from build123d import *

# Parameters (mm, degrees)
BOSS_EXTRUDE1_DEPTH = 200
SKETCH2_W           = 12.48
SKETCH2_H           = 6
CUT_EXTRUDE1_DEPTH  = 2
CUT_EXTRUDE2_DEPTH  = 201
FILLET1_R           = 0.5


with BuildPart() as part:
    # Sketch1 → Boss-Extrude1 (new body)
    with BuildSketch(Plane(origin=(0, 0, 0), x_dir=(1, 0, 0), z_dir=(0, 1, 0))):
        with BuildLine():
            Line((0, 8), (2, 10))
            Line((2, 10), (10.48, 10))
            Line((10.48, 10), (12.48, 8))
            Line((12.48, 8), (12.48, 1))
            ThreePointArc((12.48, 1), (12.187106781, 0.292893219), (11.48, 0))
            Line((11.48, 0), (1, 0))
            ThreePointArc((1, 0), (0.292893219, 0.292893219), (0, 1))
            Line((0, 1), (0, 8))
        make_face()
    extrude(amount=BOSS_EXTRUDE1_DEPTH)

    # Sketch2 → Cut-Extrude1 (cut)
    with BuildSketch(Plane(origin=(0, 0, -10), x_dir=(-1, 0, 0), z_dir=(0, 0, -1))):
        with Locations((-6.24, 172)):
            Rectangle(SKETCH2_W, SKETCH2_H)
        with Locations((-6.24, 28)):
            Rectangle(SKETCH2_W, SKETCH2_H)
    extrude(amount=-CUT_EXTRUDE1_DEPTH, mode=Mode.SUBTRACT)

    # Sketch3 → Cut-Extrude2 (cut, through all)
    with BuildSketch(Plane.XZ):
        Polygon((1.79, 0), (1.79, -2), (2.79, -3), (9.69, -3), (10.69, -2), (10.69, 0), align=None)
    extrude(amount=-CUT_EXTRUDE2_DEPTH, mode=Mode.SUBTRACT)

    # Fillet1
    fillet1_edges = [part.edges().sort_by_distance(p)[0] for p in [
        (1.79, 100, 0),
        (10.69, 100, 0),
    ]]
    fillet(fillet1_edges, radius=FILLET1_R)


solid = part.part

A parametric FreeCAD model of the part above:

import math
import FreeCAD as App
import Part
import Sketcher


def edges_at(feature, points):
    """Names of the edges that pass closest to the given points."""
    edges = feature.Shape.Edges
    near = lambda p: min(range(len(edges)), key=lambda i: edges[i].distToShape(Part.Vertex(*p))[0])
    return sorted({f"Edge{near(p) + 1}" for p in points})

doc = App.newDocument("Part")
body = doc.addObject("PartDesign::Body", "Body")

# Sketch on XZ plane
sketch1 = body.newObject("Sketcher::SketchObject", "Sketch")
sketch1.AttachmentSupport = (doc.getObject("XZ_Plane"), [""])
sketch1.MapMode = "FlatFace"
sketch1.addGeometry(Part.LineSegment(App.Vector(2, -10, 0), App.Vector(0, -8, 0)), False)
sketch1.addGeometry(Part.LineSegment(App.Vector(0, -8, 0), App.Vector(0, -1, 0)), False)
sketch1.addGeometry(Part.ArcOfCircle(Part.Circle(App.Vector(1, -1, 0), App.Vector(0, 0, 1), 1), math.radians(90), math.radians(180)), False)
sketch1.addGeometry(Part.LineSegment(App.Vector(1, 0, 0), App.Vector(11.48, 0, 0)), False)
sketch1.addGeometry(Part.ArcOfCircle(Part.Circle(App.Vector(11.48, -1, 0), App.Vector(0, 0, 1), 1), math.radians(0), math.radians(90)), False)
sketch1.addGeometry(Part.LineSegment(App.Vector(12.48, -1, 0), App.Vector(12.48, -8, 0)), False)
sketch1.addGeometry(Part.LineSegment(App.Vector(12.48, -8, 0), App.Vector(10.48, -10, 0)), False)
sketch1.addGeometry(Part.LineSegment(App.Vector(10.48, -10, 0), App.Vector(2, -10, 0)), False)
sketch1.addConstraint(Sketcher.Constraint("Coincident", 0, 2, 1, 1))
sketch1.addConstraint(Sketcher.Constraint("Tangent", 1, 2, 2, 2))
sketch1.addConstraint(Sketcher.Constraint("Tangent", 2, 1, 3, 1))
sketch1.addConstraint(Sketcher.Constraint("Tangent", 3, 2, 4, 2))
sketch1.addConstraint(Sketcher.Constraint("Tangent", 4, 1, 5, 1))
sketch1.addConstraint(Sketcher.Constraint("Coincident", 5, 2, 6, 1))
sketch1.addConstraint(Sketcher.Constraint("Coincident", 6, 2, 7, 1))
sketch1.addConstraint(Sketcher.Constraint("Coincident", 7, 2, 0, 1))
sketch1.addConstraint(Sketcher.Constraint("Vertical", 1))
sketch1.addConstraint(Sketcher.Constraint("Horizontal", 3))
sketch1.addConstraint(Sketcher.Constraint("Vertical", 5))
sketch1.addConstraint(Sketcher.Constraint("Horizontal", 7))
sketch1.addConstraint(Sketcher.Constraint("Equal", 2, 4))
sketch1.addConstraint(Sketcher.Constraint("PointOnObject", 0, 2, -2))
sketch1.addConstraint(Sketcher.Constraint("PointOnObject", 2, 1, -1))
sketch1.addConstraint(Sketcher.Constraint("Perpendicular", 0, 6))
sketch1.addConstraint(Sketcher.Constraint("Horizontal", 0, 2, 5, 2))
sketch1.addConstraint(Sketcher.Constraint("Equal", 0, 6))
sketch1.addConstraint(Sketcher.Constraint("Radius", 2, 1.0))
sketch1.addConstraint(Sketcher.Constraint("DistanceY", 1, 1, 1, 2, 7.0))
sketch1.addConstraint(Sketcher.Constraint("DistanceY", 6, 2, -1, 1, 10.0))
sketch1.addConstraint(Sketcher.Constraint("DistanceX", 3, 1, 3, 2, 10.48))
pad1 = body.newObject("PartDesign::Pad", "Pad")
pad1.Profile = sketch1
pad1.Length = 200
pad1.Reversed = True

# Sketch on XY plane
sketch2 = body.newObject("Sketcher::SketchObject", "Sketch001")
sketch2.AttachmentSupport = (doc.getObject("XY_Plane"), [""])
sketch2.MapMode = "FlatFace"
sketch2.AttachmentOffset = App.Placement(App.Vector(0, 0, -10), App.Rotation())
sketch2.addGeometry(Part.LineSegment(App.Vector(12.48, 175, 0), App.Vector(12.48, 169, 0)), False)
sketch2.addGeometry(Part.LineSegment(App.Vector(12.48, 169, 0), App.Vector(0, 169, 0)), False)
sketch2.addGeometry(Part.LineSegment(App.Vector(0, 169, 0), App.Vector(0, 175, 0)), False)
sketch2.addGeometry(Part.LineSegment(App.Vector(0, 175, 0), App.Vector(12.48, 175, 0)), False)
sketch2.addGeometry(Part.LineSegment(App.Vector(12.48, 31, 0), App.Vector(12.48, 25, 0)), False)
sketch2.addGeometry(Part.LineSegment(App.Vector(12.48, 25, 0), App.Vector(0, 25, 0)), False)
sketch2.addGeometry(Part.LineSegment(App.Vector(0, 25, 0), App.Vector(0, 31, 0)), False)
sketch2.addGeometry(Part.LineSegment(App.Vector(0, 31, 0), App.Vector(12.48, 31, 0)), False)
sketch2.addConstraint(Sketcher.Constraint("Coincident", 0, 2, 1, 1))
sketch2.addConstraint(Sketcher.Constraint("Coincident", 1, 2, 2, 1))
sketch2.addConstraint(Sketcher.Constraint("Coincident", 2, 2, 3, 1))
sketch2.addConstraint(Sketcher.Constraint("Coincident", 3, 2, 0, 1))
sketch2.addConstraint(Sketcher.Constraint("Coincident", 4, 2, 5, 1))
sketch2.addConstraint(Sketcher.Constraint("Coincident", 5, 2, 6, 1))
sketch2.addConstraint(Sketcher.Constraint("Coincident", 6, 2, 7, 1))
sketch2.addConstraint(Sketcher.Constraint("Coincident", 7, 2, 4, 1))
sketch2.addConstraint(Sketcher.Constraint("Vertical", 0))
sketch2.addConstraint(Sketcher.Constraint("Horizontal", 1))
sketch2.addConstraint(Sketcher.Constraint("Vertical", 2))
sketch2.addConstraint(Sketcher.Constraint("Horizontal", 3))
sketch2.addConstraint(Sketcher.Constraint("Vertical", 4))
sketch2.addConstraint(Sketcher.Constraint("Horizontal", 5))
sketch2.addConstraint(Sketcher.Constraint("Vertical", 6))
sketch2.addConstraint(Sketcher.Constraint("Horizontal", 7))
sketch2.addConstraint(Sketcher.Constraint("PointOnObject", 1, 2, -2))
sketch2.addConstraint(Sketcher.Constraint("PointOnObject", 5, 2, -2))
sketch2.addConstraint(Sketcher.Constraint("Vertical", 3, 2, 4, 2))
sketch2.addConstraint(Sketcher.Constraint("Equal", 2, 4))
sketch2.addConstraint(Sketcher.Constraint("DistanceY", 0, 2, 0, 1, 6.0))
sketch2.addConstraint(Sketcher.Constraint("DistanceY", -1, 1, 0, 2, 169.0))
sketch2.addConstraint(Sketcher.Constraint("DistanceY", -1, 1, 4, 2, 25.0))
sketch2.addConstraint(Sketcher.Constraint("DistanceX", 1, 2, 1, 1, 12.48))
pocket1 = body.newObject("PartDesign::Pocket", "Pocket")
pocket1.Profile = sketch2
pocket1.Length = 2
pocket1.Reversed = True

# Sketch on XZ plane
sketch3 = body.newObject("Sketcher::SketchObject", "Sketch002")
sketch3.AttachmentSupport = (doc.getObject("XZ_Plane"), [""])
sketch3.MapMode = "FlatFace"
sketch3.addGeometry(Part.LineSegment(App.Vector(1.79, 0, 0), App.Vector(1.79, -2, 0)), False)
sketch3.addGeometry(Part.LineSegment(App.Vector(1.79, -2, 0), App.Vector(2.79, -3, 0)), False)
sketch3.addGeometry(Part.LineSegment(App.Vector(2.79, -3, 0), App.Vector(9.69, -3, 0)), False)
sketch3.addGeometry(Part.LineSegment(App.Vector(9.69, -3, 0), App.Vector(10.69, -2, 0)), False)
sketch3.addGeometry(Part.LineSegment(App.Vector(10.69, -2, 0), App.Vector(10.69, 0, 0)), False)
sketch3.addGeometry(Part.LineSegment(App.Vector(10.69, 0, 0), App.Vector(1.79, 0, 0)), False)
sketch3.addConstraint(Sketcher.Constraint("Coincident", 0, 2, 1, 1))
sketch3.addConstraint(Sketcher.Constraint("Coincident", 1, 2, 2, 1))
sketch3.addConstraint(Sketcher.Constraint("Coincident", 2, 2, 3, 1))
sketch3.addConstraint(Sketcher.Constraint("Coincident", 3, 2, 4, 1))
sketch3.addConstraint(Sketcher.Constraint("Coincident", 4, 2, 5, 1))
sketch3.addConstraint(Sketcher.Constraint("Coincident", 5, 2, 0, 1))
sketch3.addConstraint(Sketcher.Constraint("Vertical", 0))
sketch3.addConstraint(Sketcher.Constraint("Horizontal", 2))
sketch3.addConstraint(Sketcher.Constraint("Vertical", 4))
sketch3.addConstraint(Sketcher.Constraint("Horizontal", 5))
sketch3.addConstraint(Sketcher.Constraint("PointOnObject", 4, 2, -1))
sketch3.addConstraint(Sketcher.Constraint("Perpendicular", 1, 3))
sketch3.addConstraint(Sketcher.Constraint("Horizontal", 0, 2, 3, 2))
sketch3.addConstraint(Sketcher.Constraint("Equal", 1, 3))
sketch3.addConstraint(Sketcher.Constraint("DistanceY", 0, 2, 0, 1, 2.0))
sketch3.addConstraint(Sketcher.Constraint("DistanceX", 2, 1, 2, 2, 6.9))
sketch3.addConstraint(Sketcher.Constraint("DistanceX", 5, 2, 5, 1, 8.9))
sketch3.addConstraint(Sketcher.Constraint("DistanceX", -1, 1, 0, 2, 1.79))
pocket2 = body.newObject("PartDesign::Pocket", "Pocket001")
pocket2.Profile = sketch3
pocket2.Type = "ThroughAll"
doc.recompute()

fillet = body.newObject("PartDesign::Fillet", "Fillet")
fillet.Base = (pocket2, edges_at(pocket2, [(1.79, 100, 0), (10.69, 100, 0)]))
fillet.Radius = 0.5

doc.recompute()
